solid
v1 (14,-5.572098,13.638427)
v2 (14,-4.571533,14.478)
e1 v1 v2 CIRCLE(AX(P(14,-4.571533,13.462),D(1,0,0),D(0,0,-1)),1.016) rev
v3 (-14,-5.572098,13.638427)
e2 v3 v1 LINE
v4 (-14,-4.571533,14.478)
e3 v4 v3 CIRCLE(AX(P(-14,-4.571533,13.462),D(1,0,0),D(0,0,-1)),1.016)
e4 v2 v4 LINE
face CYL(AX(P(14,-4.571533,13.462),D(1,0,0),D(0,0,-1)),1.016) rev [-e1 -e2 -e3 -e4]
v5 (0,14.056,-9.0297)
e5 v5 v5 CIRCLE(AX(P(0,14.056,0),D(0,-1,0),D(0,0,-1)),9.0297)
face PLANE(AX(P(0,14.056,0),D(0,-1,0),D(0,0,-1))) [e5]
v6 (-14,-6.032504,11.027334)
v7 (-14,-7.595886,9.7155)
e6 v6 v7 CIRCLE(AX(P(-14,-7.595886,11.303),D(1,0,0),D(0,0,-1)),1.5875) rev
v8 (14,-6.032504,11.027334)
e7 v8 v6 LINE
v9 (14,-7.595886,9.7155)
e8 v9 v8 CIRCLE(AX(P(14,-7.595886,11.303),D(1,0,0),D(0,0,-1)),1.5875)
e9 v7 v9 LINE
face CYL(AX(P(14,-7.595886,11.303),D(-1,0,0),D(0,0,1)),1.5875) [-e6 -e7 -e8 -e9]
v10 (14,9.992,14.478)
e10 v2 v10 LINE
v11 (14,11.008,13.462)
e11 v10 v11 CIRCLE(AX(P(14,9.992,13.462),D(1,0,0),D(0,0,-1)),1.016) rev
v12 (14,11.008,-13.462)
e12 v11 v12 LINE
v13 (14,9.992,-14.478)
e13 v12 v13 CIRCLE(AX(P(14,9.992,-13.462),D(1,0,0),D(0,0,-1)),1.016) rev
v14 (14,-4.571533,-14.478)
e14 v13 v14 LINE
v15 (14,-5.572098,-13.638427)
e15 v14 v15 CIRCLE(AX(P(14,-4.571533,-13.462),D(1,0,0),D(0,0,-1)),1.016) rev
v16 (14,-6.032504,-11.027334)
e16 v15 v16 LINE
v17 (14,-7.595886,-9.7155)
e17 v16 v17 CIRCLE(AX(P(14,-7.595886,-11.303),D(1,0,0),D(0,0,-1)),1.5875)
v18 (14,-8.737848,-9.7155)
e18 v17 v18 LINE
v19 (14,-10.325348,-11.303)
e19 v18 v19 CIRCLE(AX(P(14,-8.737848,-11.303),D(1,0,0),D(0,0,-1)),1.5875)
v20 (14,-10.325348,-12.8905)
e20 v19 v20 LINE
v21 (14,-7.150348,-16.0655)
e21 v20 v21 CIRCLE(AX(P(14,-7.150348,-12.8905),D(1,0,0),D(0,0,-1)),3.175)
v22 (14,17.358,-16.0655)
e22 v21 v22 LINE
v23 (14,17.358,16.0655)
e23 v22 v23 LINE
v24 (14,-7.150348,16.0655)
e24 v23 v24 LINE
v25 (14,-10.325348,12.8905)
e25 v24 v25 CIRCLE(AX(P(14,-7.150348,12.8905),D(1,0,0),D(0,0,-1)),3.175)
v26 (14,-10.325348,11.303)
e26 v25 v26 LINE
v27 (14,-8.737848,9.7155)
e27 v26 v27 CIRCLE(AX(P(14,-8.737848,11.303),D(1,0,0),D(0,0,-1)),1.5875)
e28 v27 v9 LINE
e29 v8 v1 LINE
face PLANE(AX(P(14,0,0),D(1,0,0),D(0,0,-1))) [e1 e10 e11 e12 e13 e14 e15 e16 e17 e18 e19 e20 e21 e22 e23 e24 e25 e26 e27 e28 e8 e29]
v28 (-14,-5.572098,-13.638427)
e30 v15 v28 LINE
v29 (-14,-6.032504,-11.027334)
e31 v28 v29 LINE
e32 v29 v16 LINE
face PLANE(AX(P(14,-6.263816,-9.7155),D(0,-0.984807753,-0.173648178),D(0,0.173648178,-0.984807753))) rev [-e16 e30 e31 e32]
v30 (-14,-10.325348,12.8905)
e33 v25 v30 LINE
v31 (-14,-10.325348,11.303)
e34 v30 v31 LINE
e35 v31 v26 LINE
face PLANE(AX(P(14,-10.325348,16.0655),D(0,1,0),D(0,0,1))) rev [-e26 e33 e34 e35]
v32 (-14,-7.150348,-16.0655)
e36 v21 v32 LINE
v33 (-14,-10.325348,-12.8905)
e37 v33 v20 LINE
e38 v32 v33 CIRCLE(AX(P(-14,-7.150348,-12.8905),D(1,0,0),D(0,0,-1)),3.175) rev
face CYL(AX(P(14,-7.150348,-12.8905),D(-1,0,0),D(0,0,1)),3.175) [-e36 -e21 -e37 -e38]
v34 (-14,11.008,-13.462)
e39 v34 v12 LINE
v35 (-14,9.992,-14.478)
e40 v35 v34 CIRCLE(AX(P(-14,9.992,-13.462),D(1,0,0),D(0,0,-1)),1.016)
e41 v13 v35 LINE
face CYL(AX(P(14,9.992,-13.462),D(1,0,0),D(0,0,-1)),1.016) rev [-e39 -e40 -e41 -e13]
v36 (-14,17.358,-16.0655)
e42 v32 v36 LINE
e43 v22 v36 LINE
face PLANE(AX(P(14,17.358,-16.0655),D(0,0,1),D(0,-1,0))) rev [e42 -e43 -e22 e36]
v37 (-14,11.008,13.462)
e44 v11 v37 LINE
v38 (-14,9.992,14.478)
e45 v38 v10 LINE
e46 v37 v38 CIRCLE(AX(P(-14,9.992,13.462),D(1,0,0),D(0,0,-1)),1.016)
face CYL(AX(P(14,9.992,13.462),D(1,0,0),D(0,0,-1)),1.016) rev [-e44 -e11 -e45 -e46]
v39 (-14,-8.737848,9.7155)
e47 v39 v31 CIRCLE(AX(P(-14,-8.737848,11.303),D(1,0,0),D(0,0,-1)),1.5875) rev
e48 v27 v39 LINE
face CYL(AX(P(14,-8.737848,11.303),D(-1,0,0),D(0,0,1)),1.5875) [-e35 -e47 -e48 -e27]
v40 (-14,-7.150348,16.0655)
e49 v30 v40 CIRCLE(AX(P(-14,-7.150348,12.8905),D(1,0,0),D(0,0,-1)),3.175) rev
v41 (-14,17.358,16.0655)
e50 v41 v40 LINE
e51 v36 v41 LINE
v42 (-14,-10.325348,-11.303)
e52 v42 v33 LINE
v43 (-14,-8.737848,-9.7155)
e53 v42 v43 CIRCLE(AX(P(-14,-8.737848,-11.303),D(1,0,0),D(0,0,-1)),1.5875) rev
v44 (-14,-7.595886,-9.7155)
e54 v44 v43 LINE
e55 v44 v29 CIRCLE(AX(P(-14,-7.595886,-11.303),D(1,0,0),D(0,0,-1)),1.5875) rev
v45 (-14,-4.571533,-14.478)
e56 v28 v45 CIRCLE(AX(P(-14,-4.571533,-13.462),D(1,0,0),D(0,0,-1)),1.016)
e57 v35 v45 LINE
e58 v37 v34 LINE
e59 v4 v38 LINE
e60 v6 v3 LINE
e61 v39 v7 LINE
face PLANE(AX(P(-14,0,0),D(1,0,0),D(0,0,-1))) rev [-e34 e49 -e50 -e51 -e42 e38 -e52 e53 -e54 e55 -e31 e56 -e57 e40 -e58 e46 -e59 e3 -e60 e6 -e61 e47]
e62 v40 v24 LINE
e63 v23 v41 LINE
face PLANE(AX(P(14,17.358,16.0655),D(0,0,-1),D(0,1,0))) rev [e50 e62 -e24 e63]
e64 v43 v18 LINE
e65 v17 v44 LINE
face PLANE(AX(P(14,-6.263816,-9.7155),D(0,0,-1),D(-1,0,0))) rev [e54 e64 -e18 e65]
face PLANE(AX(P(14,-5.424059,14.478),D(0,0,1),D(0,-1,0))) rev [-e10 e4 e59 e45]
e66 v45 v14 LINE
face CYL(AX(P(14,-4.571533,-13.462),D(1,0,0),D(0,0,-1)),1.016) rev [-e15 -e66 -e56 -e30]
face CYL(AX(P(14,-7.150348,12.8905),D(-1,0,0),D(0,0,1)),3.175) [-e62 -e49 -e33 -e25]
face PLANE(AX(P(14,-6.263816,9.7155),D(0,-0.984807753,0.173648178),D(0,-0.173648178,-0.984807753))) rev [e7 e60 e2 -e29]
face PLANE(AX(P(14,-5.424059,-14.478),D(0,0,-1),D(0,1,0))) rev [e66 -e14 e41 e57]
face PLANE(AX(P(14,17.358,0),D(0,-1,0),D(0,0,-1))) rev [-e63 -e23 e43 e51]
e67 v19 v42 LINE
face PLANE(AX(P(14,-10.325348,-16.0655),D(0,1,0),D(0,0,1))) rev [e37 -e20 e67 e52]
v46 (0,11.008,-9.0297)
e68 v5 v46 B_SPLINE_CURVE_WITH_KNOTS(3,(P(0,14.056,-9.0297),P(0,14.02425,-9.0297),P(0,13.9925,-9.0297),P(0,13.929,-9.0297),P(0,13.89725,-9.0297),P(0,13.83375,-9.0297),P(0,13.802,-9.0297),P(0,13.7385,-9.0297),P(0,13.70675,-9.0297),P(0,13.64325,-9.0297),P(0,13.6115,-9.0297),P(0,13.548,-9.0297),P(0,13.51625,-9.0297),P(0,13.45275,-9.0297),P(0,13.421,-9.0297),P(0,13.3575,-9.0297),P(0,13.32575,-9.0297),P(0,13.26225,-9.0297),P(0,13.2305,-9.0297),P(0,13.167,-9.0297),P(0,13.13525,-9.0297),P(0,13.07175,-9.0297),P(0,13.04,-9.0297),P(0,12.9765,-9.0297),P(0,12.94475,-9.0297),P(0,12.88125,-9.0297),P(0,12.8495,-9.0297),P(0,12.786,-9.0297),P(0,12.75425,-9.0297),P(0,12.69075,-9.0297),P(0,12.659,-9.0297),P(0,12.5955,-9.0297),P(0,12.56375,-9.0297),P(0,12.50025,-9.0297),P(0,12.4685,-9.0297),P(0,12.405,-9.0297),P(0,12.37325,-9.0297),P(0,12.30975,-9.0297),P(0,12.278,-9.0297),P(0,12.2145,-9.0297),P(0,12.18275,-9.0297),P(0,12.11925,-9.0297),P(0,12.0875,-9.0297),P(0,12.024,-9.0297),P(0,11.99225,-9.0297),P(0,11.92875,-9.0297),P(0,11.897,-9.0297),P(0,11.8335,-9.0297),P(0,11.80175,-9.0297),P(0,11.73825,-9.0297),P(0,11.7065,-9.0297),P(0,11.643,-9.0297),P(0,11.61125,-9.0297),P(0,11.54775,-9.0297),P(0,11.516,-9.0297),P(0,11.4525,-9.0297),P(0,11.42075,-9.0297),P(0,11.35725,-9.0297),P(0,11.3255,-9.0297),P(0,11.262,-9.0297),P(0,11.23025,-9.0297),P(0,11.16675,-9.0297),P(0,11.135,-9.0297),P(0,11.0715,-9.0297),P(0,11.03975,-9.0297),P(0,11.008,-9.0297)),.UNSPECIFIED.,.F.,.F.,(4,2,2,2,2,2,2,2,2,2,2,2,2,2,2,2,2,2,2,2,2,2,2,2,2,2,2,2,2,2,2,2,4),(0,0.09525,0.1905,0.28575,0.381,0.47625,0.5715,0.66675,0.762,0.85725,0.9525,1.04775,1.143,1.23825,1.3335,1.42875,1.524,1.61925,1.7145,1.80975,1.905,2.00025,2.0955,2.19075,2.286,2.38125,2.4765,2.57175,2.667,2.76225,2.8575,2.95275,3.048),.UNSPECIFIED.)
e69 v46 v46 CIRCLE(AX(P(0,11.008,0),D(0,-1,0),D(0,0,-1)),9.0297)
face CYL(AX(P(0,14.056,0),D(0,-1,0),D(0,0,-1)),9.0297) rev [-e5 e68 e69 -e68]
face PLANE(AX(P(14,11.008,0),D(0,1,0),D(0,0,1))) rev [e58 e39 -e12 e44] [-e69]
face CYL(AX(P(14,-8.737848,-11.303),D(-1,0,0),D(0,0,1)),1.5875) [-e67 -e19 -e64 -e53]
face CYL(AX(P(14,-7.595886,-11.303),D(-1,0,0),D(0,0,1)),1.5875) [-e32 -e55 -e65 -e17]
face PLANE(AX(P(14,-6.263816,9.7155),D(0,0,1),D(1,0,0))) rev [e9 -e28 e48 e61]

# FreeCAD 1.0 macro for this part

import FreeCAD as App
import Part
import Sketcher
Q = App.Units.Quantity


def edges_at(feature, points):
    """Names of the edges that pass closest to the given points."""
    edges = feature.Shape.Edges
    near = lambda p: min(range(len(edges)), key=lambda i: edges[i].distToShape(Part.Vertex(*p))[0])
    return sorted({f"Edge{near(p) + 1}" for p in points})


def add_polygon(sketch, points):
    """Adds a closed chain of lines whose ends are joined by coincident constraints."""
    first, n = sketch.GeometryCount, len(points)
    for a, b in zip(points, points[1:] + points[:1]):
        sketch.addGeometry(Part.LineSegment(App.Vector(*a, 0), App.Vector(*b, 0)), False)
    for i in range(n):
        sketch.addConstraint(Sketcher.Constraint("Coincident", first + i, 2, first + (i + 1) % n, 1))

doc = App.newDocument("Part")
body = doc.addObject("PartDesign::Body", "Body")

sketch1 = body.newObject("Sketcher::SketchObject", "Sketch")
sketch1.AttachmentSupport = (doc.getObject("YZ_Plane"), [""])
sketch1.MapMode = "FlatFace"
add_polygon(sketch1, [(-10.325348, 16.0655), (-10.325348, 9.7155), (-6.263816, 9.7155), (-5.424059, 14.478), (11.008, 14.478), (11.008, -14.478), (-5.424059, -14.478), (-6.263816, -9.7155), (-10.325348, -9.7155), (-10.325348, -16.0655), (17.358, -16.0655), (17.358, 16.0655)])
sketch1.addConstraint([
    Sketcher.Constraint("Vertical", 0),
    Sketcher.Constraint("Horizontal", 1),
    Sketcher.Constraint("Horizontal", 3),
    Sketcher.Constraint("Vertical", 4),
    Sketcher.Constraint("Horizontal", 5),
    Sketcher.Constraint("Horizontal", 7),
    Sketcher.Constraint("Vertical", 8),
    Sketcher.Constraint("Horizontal", 9),
    Sketcher.Constraint("Vertical", 10),
    Sketcher.Constraint("Horizontal", 11),
    Sketcher.Constraint("Symmetric", 2, 2, 5, 2, -1),
    Sketcher.Constraint("Symmetric", 1, 2, 6, 2, -1),
    Sketcher.Constraint("Symmetric", 8, 2, 11, 2, -1),
    Sketcher.Constraint("Angle", 2, Q("80 deg")),
    Sketcher.Constraint("DistanceY", 0, 2, 0, 1, Q("0.25 in")),
    Sketcher.Constraint("DistanceY", 4, 2, 4, 1, Q("1.14 in")),
    Sketcher.Constraint("DistanceY", 10, 1, 10, 2, Q("1.265 in")),
    Sketcher.Constraint("DistanceX", 4, 2, 9, 2, Q("0.25 in")),
    Sketcher.Constraint("DistanceX", 3, 1, 3, 2, Q("16.432059 mm")),
    Sketcher.Constraint("DistanceX", 9, 1, 9, 2, Q("27.683348 mm")),
    Sketcher.Constraint("DistanceX", -1, 1, 3, 2, Q("11.008 mm")),
])
pad1 = body.newObject("PartDesign::Pad", "Pad")
pad1.Profile = sketch1
pad1.Type = "TwoLengths"
pad1.Length = 14
pad1.Length2 = 14
doc.recompute()

fillet = body.newObject("PartDesign::Fillet", "Fillet")
fillet.Base = (pad1, edges_at(pad1, [(0, -10.325, 16.066), (0, -10.325, -16.066)]))
fillet.Radius = Q("0.125 in")
doc.recompute()

fillet2 = body.newObject("PartDesign::Fillet", "Fillet001")
fillet2.Base = (fillet, edges_at(fillet, [
    (0, -5.424, -14.478),
    (0, 11.008, -14.478),
    (0, 11.008, 14.478),
    (0, -5.424, 14.478),
]))
fillet2.Radius = Q("0.04 in")
doc.recompute()

fillet3 = body.newObject("PartDesign::Fillet", "Fillet002")
fillet3.Base = (fillet2, edges_at(fillet2, [
    (0, -6.264, 9.716),
    (0, -10.325, 9.716),
    (0, -10.325, -9.716),
    (0, -6.264, -9.716),
]))
fillet3.Radius = Q("0.0625 in")

sketch2 = body.newObject("Sketcher::SketchObject", "Sketch001")
sketch2.AttachmentSupport = (doc.getObject("XZ_Plane"), [""])
sketch2.MapMode = "FlatFace"
sketch2.AttachmentOffset = App.Placement(App.Vector(0, 0, -11.008), App.Rotation())
sketch2.addGeometry(Part.Circle(App.Vector(0, 0, 0), App.Vector(0, 0, 1), 9.0297), False)
sketch2.addConstraint([
    Sketcher.Constraint("Coincident", 0, 3, -1, 1),
    Sketcher.Constraint("Diameter", 0, Q("0.711 in")),
])
pocket1 = body.newObject("PartDesign::Pocket", "Pocket")
pocket1.Profile = sketch2
pocket1.Length = Q("0.12 in")

doc.recompute()
